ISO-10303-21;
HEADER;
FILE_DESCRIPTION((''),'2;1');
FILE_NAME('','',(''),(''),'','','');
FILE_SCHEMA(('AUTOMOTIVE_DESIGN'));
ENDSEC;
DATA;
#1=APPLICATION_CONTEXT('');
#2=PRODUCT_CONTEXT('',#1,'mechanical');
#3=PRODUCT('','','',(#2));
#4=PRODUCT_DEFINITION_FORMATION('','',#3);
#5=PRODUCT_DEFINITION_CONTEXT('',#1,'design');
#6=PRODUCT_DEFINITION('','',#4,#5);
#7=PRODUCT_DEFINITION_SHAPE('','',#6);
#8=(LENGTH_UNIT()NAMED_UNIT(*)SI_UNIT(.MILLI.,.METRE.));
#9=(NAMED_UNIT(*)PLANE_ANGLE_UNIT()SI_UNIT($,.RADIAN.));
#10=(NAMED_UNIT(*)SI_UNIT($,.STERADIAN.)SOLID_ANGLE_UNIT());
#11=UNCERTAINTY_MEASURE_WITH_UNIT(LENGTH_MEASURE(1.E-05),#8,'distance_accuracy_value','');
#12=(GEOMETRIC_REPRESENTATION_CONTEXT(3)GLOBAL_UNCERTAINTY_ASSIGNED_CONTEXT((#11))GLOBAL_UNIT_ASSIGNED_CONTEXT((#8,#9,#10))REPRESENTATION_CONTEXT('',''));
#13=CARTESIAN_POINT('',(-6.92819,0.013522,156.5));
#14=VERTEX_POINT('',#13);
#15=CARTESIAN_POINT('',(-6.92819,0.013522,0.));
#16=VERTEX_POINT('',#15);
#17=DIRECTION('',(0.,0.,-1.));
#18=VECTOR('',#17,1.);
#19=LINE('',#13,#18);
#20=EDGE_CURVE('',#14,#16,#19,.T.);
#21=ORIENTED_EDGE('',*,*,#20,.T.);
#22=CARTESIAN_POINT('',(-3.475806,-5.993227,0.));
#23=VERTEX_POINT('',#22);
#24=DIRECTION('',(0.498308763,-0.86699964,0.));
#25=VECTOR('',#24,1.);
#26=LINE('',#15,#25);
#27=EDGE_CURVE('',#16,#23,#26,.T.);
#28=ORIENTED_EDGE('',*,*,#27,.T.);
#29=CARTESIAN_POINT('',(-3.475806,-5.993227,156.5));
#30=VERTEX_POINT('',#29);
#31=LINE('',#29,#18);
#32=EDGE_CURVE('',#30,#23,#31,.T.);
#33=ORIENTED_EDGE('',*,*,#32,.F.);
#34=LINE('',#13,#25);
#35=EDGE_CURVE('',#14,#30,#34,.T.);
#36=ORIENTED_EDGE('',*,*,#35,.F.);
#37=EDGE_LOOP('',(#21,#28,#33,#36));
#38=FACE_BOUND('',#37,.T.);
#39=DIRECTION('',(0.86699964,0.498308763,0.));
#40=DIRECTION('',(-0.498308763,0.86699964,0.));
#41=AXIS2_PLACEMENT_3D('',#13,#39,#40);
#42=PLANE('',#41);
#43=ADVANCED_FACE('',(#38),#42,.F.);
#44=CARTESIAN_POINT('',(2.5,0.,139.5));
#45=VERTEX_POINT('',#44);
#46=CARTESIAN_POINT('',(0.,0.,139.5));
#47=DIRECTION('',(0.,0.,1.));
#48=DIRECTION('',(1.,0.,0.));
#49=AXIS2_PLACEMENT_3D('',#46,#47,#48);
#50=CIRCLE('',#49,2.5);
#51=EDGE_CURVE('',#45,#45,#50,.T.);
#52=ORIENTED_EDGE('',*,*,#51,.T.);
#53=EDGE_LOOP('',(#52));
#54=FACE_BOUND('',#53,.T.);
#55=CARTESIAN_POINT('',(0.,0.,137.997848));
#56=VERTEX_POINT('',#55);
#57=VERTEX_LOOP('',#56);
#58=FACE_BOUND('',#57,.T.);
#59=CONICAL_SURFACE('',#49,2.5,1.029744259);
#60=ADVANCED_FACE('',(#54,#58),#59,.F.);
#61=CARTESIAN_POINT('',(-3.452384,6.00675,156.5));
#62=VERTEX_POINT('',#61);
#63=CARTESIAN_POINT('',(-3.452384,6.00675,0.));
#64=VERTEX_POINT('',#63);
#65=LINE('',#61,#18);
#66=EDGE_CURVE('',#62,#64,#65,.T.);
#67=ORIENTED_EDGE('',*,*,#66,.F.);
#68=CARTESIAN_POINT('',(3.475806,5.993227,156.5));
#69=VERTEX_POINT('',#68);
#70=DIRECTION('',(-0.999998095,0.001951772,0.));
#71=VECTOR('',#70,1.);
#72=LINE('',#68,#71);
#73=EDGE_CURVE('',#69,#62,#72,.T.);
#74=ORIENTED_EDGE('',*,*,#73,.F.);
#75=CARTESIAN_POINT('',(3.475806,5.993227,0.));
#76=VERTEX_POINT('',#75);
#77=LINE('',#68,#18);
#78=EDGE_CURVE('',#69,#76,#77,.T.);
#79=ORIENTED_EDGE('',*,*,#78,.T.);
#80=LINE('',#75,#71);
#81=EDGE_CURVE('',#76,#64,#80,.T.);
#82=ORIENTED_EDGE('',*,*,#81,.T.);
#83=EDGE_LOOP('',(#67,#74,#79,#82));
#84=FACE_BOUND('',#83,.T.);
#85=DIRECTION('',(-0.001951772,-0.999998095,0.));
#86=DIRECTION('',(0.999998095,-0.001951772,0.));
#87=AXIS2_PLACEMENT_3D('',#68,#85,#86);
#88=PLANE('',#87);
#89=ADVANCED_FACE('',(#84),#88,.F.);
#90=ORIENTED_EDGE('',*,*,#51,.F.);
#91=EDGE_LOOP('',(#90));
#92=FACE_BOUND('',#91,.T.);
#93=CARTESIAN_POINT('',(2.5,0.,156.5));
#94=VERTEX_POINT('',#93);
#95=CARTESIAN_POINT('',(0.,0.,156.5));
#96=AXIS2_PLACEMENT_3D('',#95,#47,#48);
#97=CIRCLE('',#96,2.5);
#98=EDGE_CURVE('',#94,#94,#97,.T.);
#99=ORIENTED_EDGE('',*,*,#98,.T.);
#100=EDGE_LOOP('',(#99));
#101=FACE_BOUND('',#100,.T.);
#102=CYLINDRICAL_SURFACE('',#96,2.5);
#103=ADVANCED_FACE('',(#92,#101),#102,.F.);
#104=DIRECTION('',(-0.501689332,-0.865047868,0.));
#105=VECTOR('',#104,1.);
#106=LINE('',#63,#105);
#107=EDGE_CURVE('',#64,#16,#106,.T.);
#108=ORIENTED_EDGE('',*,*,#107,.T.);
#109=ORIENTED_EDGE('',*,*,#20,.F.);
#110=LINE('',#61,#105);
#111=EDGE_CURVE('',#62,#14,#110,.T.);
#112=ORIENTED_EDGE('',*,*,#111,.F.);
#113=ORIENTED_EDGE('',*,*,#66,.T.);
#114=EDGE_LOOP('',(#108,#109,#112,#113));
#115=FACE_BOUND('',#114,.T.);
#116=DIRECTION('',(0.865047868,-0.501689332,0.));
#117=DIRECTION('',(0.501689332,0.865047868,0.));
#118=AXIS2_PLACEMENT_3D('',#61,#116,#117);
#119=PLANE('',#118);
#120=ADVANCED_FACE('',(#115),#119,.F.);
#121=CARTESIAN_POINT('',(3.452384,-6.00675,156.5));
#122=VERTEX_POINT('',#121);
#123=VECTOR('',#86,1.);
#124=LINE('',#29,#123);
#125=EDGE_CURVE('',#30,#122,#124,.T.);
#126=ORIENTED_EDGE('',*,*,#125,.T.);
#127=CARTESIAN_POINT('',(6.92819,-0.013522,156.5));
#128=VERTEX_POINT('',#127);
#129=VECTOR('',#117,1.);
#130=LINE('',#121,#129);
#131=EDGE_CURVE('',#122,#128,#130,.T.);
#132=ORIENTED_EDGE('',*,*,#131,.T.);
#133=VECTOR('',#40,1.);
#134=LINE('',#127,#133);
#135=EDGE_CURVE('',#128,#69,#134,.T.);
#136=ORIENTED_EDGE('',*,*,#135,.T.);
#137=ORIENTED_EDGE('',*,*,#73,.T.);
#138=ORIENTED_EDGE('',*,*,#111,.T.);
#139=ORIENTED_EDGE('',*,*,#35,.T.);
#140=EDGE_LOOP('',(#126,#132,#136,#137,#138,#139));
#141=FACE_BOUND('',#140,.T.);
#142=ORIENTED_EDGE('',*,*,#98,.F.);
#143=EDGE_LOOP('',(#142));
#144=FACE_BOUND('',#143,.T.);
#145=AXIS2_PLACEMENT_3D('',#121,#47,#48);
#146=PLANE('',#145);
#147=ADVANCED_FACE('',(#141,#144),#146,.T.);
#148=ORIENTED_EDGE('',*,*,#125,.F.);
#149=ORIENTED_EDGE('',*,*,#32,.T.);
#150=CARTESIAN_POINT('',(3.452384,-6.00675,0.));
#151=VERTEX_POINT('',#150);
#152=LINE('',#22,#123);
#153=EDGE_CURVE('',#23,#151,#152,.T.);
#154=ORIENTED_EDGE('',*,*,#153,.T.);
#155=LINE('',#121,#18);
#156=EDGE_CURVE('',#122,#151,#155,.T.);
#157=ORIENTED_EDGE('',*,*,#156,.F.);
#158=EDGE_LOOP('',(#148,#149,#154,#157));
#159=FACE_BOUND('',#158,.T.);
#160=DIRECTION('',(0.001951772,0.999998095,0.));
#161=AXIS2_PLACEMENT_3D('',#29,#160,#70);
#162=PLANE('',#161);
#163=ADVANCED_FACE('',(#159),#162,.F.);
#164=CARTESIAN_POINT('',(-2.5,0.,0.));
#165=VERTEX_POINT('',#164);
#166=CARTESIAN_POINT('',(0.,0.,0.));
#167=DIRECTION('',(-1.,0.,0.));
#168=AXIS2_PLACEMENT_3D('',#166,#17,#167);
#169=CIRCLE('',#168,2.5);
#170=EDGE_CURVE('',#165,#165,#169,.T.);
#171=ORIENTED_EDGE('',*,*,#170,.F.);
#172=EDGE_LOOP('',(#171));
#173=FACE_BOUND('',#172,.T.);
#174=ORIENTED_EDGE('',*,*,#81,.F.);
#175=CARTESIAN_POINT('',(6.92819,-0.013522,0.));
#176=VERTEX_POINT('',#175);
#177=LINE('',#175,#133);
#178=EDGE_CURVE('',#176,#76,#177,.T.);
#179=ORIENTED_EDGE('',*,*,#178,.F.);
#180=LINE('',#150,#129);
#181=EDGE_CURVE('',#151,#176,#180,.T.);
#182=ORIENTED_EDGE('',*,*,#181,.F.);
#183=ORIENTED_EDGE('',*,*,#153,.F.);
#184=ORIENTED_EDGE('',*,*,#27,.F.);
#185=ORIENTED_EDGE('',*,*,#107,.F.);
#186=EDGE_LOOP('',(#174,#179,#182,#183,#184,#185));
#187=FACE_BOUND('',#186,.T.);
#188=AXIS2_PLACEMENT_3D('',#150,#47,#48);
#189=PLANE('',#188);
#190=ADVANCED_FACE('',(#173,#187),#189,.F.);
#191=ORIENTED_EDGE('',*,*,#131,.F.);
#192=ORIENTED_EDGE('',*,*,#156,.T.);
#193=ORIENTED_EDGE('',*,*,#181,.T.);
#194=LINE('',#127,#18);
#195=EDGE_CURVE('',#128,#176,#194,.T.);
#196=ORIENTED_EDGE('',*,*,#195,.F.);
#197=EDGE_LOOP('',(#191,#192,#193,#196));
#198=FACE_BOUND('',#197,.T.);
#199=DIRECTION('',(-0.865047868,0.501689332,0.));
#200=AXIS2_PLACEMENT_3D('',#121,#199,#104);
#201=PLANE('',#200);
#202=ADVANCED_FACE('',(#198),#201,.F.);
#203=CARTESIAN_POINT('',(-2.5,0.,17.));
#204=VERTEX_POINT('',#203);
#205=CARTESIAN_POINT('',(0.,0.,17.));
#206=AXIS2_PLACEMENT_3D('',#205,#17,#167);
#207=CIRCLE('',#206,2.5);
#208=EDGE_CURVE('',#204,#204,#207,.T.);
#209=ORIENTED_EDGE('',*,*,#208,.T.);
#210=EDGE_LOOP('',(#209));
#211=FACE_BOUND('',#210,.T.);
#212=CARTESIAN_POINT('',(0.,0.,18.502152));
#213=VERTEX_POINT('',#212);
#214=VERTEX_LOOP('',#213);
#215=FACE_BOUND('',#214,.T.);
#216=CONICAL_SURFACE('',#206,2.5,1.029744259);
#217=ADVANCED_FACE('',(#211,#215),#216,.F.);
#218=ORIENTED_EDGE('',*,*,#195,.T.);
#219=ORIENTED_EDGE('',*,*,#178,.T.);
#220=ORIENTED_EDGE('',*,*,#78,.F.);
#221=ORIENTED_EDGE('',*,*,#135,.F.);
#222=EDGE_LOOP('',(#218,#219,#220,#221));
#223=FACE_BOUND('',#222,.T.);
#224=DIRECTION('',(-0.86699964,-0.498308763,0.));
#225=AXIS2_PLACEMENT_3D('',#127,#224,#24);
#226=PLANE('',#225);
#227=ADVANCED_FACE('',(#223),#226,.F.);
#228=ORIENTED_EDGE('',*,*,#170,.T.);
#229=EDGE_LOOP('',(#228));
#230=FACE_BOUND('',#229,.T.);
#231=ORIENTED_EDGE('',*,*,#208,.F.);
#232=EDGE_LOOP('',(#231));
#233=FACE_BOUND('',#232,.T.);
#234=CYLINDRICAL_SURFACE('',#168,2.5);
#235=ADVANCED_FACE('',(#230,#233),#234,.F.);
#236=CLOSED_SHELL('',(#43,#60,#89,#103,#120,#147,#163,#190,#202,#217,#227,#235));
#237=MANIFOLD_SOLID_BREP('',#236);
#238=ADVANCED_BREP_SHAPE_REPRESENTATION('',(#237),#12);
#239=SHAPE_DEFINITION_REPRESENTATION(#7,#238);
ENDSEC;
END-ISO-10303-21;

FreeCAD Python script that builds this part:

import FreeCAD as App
import Part
import Sketcher

doc = App.newDocument("Part")
params = doc.addObject("Spreadsheet::Sheet", "Params")
for row, (alias, value) in enumerate([
    ("pad1_length", "156.5 mm"),
    ("sketch2_diameter", "5 mm"),
    ("hole_diameter", "5 mm"),
    ("hole_depth", "17 mm"),
    ("sketch3_diameter", "5 mm"),
    ("hole2_diameter", "5 mm"),
    ("hole2_depth", "17 mm"),
], start=1):
    params.set(f"A{row}", alias)
    params.set(f"B{row}", "=" + value)
    params.setAlias(f"B{row}", alias)

body = doc.addObject("PartDesign::Body", "Body")

# Sketch on XY plane
sketch1 = doc.addObject("Sketcher::SketchObject", "Sketch")
body.addObject(sketch1)
sketch1.AttachmentSupport = (doc.XY_Plane, [""])
sketch1.MapMode = "FlatFace"
sketch1.addGeometry([
    Part.LineSegment(App.Vector(3, -6, 0), App.Vector(7, 0, 0)),  # 0
    Part.LineSegment(App.Vector(7, 0, 0), App.Vector(3, 6, 0)),  # 1
    Part.LineSegment(App.Vector(3, 6, 0), App.Vector(-3, 6, 0)),  # 2
    Part.LineSegment(App.Vector(-3, 6, 0), App.Vector(-7, 0, 0)),  # 3
    Part.LineSegment(App.Vector(-7, 0, 0), App.Vector(-3, -6, 0)),  # 4
    Part.LineSegment(App.Vector(-3, -6, 0), App.Vector(3, -6, 0)),  # 5
], False)
sketch1.addConstraint([
    Sketcher.Constraint("Coincident", 0, 2, 1, 1),
    Sketcher.Constraint("Coincident", 1, 2, 2, 1),
    Sketcher.Constraint("Coincident", 2, 2, 3, 1),
    Sketcher.Constraint("Coincident", 3, 2, 4, 1),
    Sketcher.Constraint("Coincident", 4, 2, 5, 1),
    Sketcher.Constraint("Coincident", 5, 2, 0, 1),
    Sketcher.Constraint("Symmetric", 0, 2, 3, 2, -1, 1),
    Sketcher.Constraint("Symmetric", 1, 2, 4, 2, -1, 1),
    Sketcher.Constraint("Symmetric", 2, 2, 5, 2, -1, 1),
    Sketcher.Constraint("Equal", 0, 1),
    Sketcher.Constraint("Equal", 1, 2),
    Sketcher.Constraint("DistanceY", 5, 2, 2, 2, 12.013499),
    Sketcher.Constraint("DistanceX", -1, 1, 0, 2, 6.92819),
    Sketcher.Constraint("DistanceY", 0, 2, 1, 2, 6.00675),
    Sketcher.Constraint("DistanceX", 2, 2, 1, 2, 6.92819),
])
pad1 = doc.addObject("PartDesign::Pad", "Pad")
body.addObject(pad1)
pad1.Profile = sketch1
pad1.setExpression("Length", "Params.pad1_length")

# Sketch on XY plane
sketch2 = doc.addObject("Sketcher::SketchObject", "Sketch001")
body.addObject(sketch2)
sketch2.AttachmentSupport = (doc.XY_Plane, [""])
sketch2.MapMode = "FlatFace"
sketch2.AttachmentOffset = App.Placement(App.Vector(0, 0, 156.5), App.Rotation())
sketch2.addGeometry(Part.Circle(App.Vector(0, 0, 0), App.Vector(0, 0, 1), 2.5), False)
sketch2.addConstraint([
    Sketcher.Constraint("Coincident", 0, 3, -1, 1),
    Sketcher.Constraint("Diameter", 0, 5.0),
])
sketch2.setExpression("Constraints[1]", "Params.sketch2_diameter")
doc.recompute()
hole = doc.addObject("PartDesign::Hole", "Hole")
body.addObject(hole)
hole.Profile = sketch2
hole.ThreadType = "None"
hole.setExpression("Diameter", "Params.hole_diameter")
hole.DepthType = "Dimension"
hole.setExpression("Depth", "Params.hole_depth")
hole.DrillPoint = "Angled"
hole.DrillPointAngle = 118

# Sketch on XY plane
sketch3 = doc.addObject("Sketcher::SketchObject", "Sketch002")
body.addObject(sketch3)
sketch3.AttachmentSupport = (doc.XY_Plane, [""])
sketch3.MapMode = "FlatFace"
sketch3.addGeometry(Part.Circle(App.Vector(0, 0, 0), App.Vector(0, 0, 1), 2.5), False)
sketch3.addConstraint([
    Sketcher.Constraint("Coincident", 0, 3, -1, 1),
    Sketcher.Constraint("Diameter", 0, 5.0),
])
sketch3.setExpression("Constraints[1]", "Params.sketch3_diameter")
doc.recompute()
hole2 = doc.addObject("PartDesign::Hole", "Hole001")
body.addObject(hole2)
hole2.Profile = sketch3
hole2.ThreadType = "None"
hole2.setExpression("Diameter", "Params.hole2_diameter")
hole2.DepthType = "Dimension"
hole2.setExpression("Depth", "Params.hole2_depth")
hole2.DrillPoint = "Angled"
hole2.DrillPointAngle = 118
hole2.Reversed = True

doc.recompute()
